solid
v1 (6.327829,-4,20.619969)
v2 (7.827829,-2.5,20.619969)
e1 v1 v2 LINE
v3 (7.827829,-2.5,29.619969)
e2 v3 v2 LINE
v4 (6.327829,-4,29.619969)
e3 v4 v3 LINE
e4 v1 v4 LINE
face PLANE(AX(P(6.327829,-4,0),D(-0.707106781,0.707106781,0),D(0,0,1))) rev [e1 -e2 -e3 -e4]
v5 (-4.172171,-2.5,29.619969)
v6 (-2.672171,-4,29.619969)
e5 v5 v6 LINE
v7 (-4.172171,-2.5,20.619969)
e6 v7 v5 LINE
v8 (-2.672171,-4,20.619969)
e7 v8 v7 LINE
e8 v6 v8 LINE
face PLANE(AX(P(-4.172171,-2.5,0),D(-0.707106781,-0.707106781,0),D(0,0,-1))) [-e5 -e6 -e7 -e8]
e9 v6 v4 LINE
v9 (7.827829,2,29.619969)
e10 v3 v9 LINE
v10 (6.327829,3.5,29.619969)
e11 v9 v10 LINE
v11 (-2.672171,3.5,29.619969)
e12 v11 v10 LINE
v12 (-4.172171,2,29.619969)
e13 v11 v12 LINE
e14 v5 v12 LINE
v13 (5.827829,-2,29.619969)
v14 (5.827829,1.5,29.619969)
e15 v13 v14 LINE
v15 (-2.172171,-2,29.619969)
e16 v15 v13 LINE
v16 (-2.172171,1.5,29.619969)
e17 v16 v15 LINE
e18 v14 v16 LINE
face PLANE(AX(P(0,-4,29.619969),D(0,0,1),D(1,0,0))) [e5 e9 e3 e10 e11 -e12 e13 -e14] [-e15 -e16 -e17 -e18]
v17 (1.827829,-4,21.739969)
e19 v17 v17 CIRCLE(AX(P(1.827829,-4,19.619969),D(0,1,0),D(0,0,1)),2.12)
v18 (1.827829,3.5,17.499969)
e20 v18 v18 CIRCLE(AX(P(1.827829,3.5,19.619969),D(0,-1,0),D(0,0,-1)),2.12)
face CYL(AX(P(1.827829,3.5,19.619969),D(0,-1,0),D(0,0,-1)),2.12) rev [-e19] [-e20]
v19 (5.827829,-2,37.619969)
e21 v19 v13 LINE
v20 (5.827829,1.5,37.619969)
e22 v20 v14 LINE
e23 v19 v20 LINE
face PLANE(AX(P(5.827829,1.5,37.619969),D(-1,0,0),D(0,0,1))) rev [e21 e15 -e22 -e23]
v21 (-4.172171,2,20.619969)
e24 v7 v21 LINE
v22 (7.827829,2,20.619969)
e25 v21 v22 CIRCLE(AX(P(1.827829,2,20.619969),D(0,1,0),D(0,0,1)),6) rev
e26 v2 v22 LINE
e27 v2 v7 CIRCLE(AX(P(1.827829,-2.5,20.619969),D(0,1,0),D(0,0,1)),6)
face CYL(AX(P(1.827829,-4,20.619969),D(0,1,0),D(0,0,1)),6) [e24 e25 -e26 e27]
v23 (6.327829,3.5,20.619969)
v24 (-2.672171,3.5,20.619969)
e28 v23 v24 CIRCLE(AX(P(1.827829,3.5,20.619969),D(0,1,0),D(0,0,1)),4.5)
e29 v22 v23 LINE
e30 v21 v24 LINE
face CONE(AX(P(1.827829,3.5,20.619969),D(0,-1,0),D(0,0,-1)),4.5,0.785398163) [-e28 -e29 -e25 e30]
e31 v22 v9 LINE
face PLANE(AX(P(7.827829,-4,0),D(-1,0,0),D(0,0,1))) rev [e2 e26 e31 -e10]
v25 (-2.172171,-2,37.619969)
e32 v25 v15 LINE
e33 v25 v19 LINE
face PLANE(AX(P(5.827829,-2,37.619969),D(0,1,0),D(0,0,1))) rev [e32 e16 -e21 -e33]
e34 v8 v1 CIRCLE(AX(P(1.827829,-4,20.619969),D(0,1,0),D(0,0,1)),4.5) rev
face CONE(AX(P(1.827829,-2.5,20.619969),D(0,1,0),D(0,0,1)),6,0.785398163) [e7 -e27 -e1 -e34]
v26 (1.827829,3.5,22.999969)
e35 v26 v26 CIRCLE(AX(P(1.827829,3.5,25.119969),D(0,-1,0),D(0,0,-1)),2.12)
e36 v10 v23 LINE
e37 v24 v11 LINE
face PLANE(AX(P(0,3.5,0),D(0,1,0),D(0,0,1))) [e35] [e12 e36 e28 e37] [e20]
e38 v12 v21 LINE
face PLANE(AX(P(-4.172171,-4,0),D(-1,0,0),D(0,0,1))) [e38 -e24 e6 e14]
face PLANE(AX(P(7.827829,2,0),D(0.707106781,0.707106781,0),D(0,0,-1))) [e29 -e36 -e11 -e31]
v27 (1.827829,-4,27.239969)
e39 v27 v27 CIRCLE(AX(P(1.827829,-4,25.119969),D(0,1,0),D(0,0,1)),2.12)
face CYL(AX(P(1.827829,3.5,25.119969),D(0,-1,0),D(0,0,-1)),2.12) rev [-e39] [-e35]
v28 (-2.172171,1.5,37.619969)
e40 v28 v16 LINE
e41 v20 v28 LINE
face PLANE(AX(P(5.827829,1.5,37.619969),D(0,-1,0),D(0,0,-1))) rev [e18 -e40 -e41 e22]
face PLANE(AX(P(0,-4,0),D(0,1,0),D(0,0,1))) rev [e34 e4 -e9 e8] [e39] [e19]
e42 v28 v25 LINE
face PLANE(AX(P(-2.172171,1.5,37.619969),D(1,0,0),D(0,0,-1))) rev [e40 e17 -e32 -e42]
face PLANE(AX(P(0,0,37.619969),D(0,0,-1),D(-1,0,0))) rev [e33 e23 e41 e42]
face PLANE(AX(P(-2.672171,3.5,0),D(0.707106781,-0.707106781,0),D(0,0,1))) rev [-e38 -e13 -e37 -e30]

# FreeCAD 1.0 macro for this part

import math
import FreeCAD as App
import Part
import Sketcher
from FreeCAD import Vector


def edges_at(feature, points):
    """Names of the edges that pass closest to the given points."""
    edges = feature.Shape.Edges
    near = lambda p: min(range(len(edges)), key=lambda i: edges[i].distToShape(Part.Vertex(*p))[0])
    return sorted({f"Edge{near(p) + 1}" for p in points})

doc = App.newDocument("Part")
body = doc.addObject("PartDesign::Body", "Body")

# Sketch on XZ plane
sketch1 = body.newObject("Sketcher::SketchObject", "Sketch")
sketch1.AttachmentSupport = (doc.getObject("XZ_Plane"), [""])
sketch1.MapMode = "FlatFace"
sketch1.addGeometry([
    Part.LineSegment(Vector(-4, 30, 0), Vector(8, 30, 0)),
    Part.LineSegment(Vector(8, 30, 0), Vector(8, 21, 0)),
    Part.ArcOfCircle(Part.Circle(Vector(2, 21, 0), Vector(0, 0, 1), 6), math.radians(180), math.radians(360)),
    Part.LineSegment(Vector(-4, 21, 0), Vector(-4, 30, 0)),
], False)
sketch1.addConstraint([
    Sketcher.Constraint("Coincident", 0, 2, 1, 1),
    Sketcher.Constraint("Tangent", 1, 2, 2, 2),
    Sketcher.Constraint("Tangent", 2, 1, 3, 1),
    Sketcher.Constraint("Coincident", 3, 2, 0, 1),
    Sketcher.Constraint("Horizontal", 0),
    Sketcher.Constraint("Vertical", 1),
    Sketcher.Constraint("Vertical", 3),
    Sketcher.Constraint("Radius", 2, 6.0),
    Sketcher.Constraint("DistanceY", 1, 2, 1, 1, 9.0),
    Sketcher.Constraint("DistanceX", -1, 1, 2, 3, 1.827829),
    Sketcher.Constraint("DistanceY", -1, 1, 2, 3, 20.619969),
])
pad1 = body.newObject("PartDesign::Pad", "Pad")
pad1.Profile = sketch1
pad1.Type = "TwoLengths"
pad1.Length = 3.5
pad1.Length2 = 4
pad1.Reversed = True

# Sketch on XY plane
sketch2 = body.newObject("Sketcher::SketchObject", "Sketch001")
sketch2.AttachmentSupport = (doc.getObject("XY_Plane"), [""])
sketch2.MapMode = "FlatFace"
sketch2.AttachmentOffset = App.Placement(Vector(0, 0, 29.619969), App.Rotation())
sketch2.addGeometry([
    Part.LineSegment(Vector(-2.2, 1.5, 0), Vector(-2.2, -2, 0)),
    Part.LineSegment(Vector(-2.2, -2, 0), Vector(5.8, -2, 0)),
    Part.LineSegment(Vector(5.8, -2, 0), Vector(5.8, 1.5, 0)),
    Part.LineSegment(Vector(5.8, 1.5, 0), Vector(-2.2, 1.5, 0)),
], False)
sketch2.addConstraint([
    Sketcher.Constraint("Coincident", 0, 2, 1, 1),
    Sketcher.Constraint("Coincident", 1, 2, 2, 1),
    Sketcher.Constraint("Coincident", 2, 2, 3, 1),
    Sketcher.Constraint("Coincident", 3, 2, 0, 1),
    Sketcher.Constraint("Vertical", 0),
    Sketcher.Constraint("Horizontal", 1),
    Sketcher.Constraint("Vertical", 2),
    Sketcher.Constraint("Horizontal", 3),
    Sketcher.Constraint("DistanceX", 1, 1, 1, 2, 8.0),
    Sketcher.Constraint("DistanceY", 0, 2, 0, 1, 3.5),
    Sketcher.Constraint("DistanceY", 0, 2, -1, 1, 2.0),
    Sketcher.Constraint("DistanceX", 0, 2, -1, 1, 2.172171),
])
pad2 = body.newObject("PartDesign::Pad", "Pad001")
pad2.Profile = sketch2
pad2.Length = 8
doc.recompute()

chamfer = body.newObject("PartDesign::Chamfer", "Chamfer")
chamfer.Base = (pad2, edges_at(pad2, [
    (1.828, -4, 14.62),
    (7.828, 3.5, 25.12),
    (1.828, 3.5, 14.62),
    (-4.172, -4, 25.12),
    (-4.172, 3.5, 25.12),
    (7.828, -4, 25.12),
]))
chamfer.Size = 1.5

# Sketch on XZ plane
sketch3 = body.newObject("Sketcher::SketchObject", "Sketch002")
sketch3.AttachmentSupport = (doc.getObject("XZ_Plane"), [""])
sketch3.MapMode = "FlatFace"
sketch3.AttachmentOffset = App.Placement(Vector(0, 0, 4), App.Rotation())
sketch3.addGeometry([
    Part.Circle(Vector(1.8, 25.1, 0), Vector(0, 0, 1), 2.1),
    Part.Circle(Vector(1.8, 19.6, 0), Vector(0, 0, 1), 2.1),
], False)
sketch3.addConstraint([
    Sketcher.Constraint("Equal", 0, 1),
    Sketcher.Constraint("Vertical", 0, 3, 1, 3),
    Sketcher.Constraint("Diameter", 0, 4.24),
    Sketcher.Constraint("DistanceY", 1, 3, 0, 3, 5.5),
    Sketcher.Constraint("DistanceX", -1, 1, 0, 3, 1.827829),
    Sketcher.Constraint("DistanceY", -1, 1, 0, 3, 25.119969),
])
pocket1 = body.newObject("PartDesign::Pocket", "Pocket")
pocket1.Profile = sketch3
pocket1.Type = "ThroughAll"
pocket1.Midplane = True

doc.recompute()
